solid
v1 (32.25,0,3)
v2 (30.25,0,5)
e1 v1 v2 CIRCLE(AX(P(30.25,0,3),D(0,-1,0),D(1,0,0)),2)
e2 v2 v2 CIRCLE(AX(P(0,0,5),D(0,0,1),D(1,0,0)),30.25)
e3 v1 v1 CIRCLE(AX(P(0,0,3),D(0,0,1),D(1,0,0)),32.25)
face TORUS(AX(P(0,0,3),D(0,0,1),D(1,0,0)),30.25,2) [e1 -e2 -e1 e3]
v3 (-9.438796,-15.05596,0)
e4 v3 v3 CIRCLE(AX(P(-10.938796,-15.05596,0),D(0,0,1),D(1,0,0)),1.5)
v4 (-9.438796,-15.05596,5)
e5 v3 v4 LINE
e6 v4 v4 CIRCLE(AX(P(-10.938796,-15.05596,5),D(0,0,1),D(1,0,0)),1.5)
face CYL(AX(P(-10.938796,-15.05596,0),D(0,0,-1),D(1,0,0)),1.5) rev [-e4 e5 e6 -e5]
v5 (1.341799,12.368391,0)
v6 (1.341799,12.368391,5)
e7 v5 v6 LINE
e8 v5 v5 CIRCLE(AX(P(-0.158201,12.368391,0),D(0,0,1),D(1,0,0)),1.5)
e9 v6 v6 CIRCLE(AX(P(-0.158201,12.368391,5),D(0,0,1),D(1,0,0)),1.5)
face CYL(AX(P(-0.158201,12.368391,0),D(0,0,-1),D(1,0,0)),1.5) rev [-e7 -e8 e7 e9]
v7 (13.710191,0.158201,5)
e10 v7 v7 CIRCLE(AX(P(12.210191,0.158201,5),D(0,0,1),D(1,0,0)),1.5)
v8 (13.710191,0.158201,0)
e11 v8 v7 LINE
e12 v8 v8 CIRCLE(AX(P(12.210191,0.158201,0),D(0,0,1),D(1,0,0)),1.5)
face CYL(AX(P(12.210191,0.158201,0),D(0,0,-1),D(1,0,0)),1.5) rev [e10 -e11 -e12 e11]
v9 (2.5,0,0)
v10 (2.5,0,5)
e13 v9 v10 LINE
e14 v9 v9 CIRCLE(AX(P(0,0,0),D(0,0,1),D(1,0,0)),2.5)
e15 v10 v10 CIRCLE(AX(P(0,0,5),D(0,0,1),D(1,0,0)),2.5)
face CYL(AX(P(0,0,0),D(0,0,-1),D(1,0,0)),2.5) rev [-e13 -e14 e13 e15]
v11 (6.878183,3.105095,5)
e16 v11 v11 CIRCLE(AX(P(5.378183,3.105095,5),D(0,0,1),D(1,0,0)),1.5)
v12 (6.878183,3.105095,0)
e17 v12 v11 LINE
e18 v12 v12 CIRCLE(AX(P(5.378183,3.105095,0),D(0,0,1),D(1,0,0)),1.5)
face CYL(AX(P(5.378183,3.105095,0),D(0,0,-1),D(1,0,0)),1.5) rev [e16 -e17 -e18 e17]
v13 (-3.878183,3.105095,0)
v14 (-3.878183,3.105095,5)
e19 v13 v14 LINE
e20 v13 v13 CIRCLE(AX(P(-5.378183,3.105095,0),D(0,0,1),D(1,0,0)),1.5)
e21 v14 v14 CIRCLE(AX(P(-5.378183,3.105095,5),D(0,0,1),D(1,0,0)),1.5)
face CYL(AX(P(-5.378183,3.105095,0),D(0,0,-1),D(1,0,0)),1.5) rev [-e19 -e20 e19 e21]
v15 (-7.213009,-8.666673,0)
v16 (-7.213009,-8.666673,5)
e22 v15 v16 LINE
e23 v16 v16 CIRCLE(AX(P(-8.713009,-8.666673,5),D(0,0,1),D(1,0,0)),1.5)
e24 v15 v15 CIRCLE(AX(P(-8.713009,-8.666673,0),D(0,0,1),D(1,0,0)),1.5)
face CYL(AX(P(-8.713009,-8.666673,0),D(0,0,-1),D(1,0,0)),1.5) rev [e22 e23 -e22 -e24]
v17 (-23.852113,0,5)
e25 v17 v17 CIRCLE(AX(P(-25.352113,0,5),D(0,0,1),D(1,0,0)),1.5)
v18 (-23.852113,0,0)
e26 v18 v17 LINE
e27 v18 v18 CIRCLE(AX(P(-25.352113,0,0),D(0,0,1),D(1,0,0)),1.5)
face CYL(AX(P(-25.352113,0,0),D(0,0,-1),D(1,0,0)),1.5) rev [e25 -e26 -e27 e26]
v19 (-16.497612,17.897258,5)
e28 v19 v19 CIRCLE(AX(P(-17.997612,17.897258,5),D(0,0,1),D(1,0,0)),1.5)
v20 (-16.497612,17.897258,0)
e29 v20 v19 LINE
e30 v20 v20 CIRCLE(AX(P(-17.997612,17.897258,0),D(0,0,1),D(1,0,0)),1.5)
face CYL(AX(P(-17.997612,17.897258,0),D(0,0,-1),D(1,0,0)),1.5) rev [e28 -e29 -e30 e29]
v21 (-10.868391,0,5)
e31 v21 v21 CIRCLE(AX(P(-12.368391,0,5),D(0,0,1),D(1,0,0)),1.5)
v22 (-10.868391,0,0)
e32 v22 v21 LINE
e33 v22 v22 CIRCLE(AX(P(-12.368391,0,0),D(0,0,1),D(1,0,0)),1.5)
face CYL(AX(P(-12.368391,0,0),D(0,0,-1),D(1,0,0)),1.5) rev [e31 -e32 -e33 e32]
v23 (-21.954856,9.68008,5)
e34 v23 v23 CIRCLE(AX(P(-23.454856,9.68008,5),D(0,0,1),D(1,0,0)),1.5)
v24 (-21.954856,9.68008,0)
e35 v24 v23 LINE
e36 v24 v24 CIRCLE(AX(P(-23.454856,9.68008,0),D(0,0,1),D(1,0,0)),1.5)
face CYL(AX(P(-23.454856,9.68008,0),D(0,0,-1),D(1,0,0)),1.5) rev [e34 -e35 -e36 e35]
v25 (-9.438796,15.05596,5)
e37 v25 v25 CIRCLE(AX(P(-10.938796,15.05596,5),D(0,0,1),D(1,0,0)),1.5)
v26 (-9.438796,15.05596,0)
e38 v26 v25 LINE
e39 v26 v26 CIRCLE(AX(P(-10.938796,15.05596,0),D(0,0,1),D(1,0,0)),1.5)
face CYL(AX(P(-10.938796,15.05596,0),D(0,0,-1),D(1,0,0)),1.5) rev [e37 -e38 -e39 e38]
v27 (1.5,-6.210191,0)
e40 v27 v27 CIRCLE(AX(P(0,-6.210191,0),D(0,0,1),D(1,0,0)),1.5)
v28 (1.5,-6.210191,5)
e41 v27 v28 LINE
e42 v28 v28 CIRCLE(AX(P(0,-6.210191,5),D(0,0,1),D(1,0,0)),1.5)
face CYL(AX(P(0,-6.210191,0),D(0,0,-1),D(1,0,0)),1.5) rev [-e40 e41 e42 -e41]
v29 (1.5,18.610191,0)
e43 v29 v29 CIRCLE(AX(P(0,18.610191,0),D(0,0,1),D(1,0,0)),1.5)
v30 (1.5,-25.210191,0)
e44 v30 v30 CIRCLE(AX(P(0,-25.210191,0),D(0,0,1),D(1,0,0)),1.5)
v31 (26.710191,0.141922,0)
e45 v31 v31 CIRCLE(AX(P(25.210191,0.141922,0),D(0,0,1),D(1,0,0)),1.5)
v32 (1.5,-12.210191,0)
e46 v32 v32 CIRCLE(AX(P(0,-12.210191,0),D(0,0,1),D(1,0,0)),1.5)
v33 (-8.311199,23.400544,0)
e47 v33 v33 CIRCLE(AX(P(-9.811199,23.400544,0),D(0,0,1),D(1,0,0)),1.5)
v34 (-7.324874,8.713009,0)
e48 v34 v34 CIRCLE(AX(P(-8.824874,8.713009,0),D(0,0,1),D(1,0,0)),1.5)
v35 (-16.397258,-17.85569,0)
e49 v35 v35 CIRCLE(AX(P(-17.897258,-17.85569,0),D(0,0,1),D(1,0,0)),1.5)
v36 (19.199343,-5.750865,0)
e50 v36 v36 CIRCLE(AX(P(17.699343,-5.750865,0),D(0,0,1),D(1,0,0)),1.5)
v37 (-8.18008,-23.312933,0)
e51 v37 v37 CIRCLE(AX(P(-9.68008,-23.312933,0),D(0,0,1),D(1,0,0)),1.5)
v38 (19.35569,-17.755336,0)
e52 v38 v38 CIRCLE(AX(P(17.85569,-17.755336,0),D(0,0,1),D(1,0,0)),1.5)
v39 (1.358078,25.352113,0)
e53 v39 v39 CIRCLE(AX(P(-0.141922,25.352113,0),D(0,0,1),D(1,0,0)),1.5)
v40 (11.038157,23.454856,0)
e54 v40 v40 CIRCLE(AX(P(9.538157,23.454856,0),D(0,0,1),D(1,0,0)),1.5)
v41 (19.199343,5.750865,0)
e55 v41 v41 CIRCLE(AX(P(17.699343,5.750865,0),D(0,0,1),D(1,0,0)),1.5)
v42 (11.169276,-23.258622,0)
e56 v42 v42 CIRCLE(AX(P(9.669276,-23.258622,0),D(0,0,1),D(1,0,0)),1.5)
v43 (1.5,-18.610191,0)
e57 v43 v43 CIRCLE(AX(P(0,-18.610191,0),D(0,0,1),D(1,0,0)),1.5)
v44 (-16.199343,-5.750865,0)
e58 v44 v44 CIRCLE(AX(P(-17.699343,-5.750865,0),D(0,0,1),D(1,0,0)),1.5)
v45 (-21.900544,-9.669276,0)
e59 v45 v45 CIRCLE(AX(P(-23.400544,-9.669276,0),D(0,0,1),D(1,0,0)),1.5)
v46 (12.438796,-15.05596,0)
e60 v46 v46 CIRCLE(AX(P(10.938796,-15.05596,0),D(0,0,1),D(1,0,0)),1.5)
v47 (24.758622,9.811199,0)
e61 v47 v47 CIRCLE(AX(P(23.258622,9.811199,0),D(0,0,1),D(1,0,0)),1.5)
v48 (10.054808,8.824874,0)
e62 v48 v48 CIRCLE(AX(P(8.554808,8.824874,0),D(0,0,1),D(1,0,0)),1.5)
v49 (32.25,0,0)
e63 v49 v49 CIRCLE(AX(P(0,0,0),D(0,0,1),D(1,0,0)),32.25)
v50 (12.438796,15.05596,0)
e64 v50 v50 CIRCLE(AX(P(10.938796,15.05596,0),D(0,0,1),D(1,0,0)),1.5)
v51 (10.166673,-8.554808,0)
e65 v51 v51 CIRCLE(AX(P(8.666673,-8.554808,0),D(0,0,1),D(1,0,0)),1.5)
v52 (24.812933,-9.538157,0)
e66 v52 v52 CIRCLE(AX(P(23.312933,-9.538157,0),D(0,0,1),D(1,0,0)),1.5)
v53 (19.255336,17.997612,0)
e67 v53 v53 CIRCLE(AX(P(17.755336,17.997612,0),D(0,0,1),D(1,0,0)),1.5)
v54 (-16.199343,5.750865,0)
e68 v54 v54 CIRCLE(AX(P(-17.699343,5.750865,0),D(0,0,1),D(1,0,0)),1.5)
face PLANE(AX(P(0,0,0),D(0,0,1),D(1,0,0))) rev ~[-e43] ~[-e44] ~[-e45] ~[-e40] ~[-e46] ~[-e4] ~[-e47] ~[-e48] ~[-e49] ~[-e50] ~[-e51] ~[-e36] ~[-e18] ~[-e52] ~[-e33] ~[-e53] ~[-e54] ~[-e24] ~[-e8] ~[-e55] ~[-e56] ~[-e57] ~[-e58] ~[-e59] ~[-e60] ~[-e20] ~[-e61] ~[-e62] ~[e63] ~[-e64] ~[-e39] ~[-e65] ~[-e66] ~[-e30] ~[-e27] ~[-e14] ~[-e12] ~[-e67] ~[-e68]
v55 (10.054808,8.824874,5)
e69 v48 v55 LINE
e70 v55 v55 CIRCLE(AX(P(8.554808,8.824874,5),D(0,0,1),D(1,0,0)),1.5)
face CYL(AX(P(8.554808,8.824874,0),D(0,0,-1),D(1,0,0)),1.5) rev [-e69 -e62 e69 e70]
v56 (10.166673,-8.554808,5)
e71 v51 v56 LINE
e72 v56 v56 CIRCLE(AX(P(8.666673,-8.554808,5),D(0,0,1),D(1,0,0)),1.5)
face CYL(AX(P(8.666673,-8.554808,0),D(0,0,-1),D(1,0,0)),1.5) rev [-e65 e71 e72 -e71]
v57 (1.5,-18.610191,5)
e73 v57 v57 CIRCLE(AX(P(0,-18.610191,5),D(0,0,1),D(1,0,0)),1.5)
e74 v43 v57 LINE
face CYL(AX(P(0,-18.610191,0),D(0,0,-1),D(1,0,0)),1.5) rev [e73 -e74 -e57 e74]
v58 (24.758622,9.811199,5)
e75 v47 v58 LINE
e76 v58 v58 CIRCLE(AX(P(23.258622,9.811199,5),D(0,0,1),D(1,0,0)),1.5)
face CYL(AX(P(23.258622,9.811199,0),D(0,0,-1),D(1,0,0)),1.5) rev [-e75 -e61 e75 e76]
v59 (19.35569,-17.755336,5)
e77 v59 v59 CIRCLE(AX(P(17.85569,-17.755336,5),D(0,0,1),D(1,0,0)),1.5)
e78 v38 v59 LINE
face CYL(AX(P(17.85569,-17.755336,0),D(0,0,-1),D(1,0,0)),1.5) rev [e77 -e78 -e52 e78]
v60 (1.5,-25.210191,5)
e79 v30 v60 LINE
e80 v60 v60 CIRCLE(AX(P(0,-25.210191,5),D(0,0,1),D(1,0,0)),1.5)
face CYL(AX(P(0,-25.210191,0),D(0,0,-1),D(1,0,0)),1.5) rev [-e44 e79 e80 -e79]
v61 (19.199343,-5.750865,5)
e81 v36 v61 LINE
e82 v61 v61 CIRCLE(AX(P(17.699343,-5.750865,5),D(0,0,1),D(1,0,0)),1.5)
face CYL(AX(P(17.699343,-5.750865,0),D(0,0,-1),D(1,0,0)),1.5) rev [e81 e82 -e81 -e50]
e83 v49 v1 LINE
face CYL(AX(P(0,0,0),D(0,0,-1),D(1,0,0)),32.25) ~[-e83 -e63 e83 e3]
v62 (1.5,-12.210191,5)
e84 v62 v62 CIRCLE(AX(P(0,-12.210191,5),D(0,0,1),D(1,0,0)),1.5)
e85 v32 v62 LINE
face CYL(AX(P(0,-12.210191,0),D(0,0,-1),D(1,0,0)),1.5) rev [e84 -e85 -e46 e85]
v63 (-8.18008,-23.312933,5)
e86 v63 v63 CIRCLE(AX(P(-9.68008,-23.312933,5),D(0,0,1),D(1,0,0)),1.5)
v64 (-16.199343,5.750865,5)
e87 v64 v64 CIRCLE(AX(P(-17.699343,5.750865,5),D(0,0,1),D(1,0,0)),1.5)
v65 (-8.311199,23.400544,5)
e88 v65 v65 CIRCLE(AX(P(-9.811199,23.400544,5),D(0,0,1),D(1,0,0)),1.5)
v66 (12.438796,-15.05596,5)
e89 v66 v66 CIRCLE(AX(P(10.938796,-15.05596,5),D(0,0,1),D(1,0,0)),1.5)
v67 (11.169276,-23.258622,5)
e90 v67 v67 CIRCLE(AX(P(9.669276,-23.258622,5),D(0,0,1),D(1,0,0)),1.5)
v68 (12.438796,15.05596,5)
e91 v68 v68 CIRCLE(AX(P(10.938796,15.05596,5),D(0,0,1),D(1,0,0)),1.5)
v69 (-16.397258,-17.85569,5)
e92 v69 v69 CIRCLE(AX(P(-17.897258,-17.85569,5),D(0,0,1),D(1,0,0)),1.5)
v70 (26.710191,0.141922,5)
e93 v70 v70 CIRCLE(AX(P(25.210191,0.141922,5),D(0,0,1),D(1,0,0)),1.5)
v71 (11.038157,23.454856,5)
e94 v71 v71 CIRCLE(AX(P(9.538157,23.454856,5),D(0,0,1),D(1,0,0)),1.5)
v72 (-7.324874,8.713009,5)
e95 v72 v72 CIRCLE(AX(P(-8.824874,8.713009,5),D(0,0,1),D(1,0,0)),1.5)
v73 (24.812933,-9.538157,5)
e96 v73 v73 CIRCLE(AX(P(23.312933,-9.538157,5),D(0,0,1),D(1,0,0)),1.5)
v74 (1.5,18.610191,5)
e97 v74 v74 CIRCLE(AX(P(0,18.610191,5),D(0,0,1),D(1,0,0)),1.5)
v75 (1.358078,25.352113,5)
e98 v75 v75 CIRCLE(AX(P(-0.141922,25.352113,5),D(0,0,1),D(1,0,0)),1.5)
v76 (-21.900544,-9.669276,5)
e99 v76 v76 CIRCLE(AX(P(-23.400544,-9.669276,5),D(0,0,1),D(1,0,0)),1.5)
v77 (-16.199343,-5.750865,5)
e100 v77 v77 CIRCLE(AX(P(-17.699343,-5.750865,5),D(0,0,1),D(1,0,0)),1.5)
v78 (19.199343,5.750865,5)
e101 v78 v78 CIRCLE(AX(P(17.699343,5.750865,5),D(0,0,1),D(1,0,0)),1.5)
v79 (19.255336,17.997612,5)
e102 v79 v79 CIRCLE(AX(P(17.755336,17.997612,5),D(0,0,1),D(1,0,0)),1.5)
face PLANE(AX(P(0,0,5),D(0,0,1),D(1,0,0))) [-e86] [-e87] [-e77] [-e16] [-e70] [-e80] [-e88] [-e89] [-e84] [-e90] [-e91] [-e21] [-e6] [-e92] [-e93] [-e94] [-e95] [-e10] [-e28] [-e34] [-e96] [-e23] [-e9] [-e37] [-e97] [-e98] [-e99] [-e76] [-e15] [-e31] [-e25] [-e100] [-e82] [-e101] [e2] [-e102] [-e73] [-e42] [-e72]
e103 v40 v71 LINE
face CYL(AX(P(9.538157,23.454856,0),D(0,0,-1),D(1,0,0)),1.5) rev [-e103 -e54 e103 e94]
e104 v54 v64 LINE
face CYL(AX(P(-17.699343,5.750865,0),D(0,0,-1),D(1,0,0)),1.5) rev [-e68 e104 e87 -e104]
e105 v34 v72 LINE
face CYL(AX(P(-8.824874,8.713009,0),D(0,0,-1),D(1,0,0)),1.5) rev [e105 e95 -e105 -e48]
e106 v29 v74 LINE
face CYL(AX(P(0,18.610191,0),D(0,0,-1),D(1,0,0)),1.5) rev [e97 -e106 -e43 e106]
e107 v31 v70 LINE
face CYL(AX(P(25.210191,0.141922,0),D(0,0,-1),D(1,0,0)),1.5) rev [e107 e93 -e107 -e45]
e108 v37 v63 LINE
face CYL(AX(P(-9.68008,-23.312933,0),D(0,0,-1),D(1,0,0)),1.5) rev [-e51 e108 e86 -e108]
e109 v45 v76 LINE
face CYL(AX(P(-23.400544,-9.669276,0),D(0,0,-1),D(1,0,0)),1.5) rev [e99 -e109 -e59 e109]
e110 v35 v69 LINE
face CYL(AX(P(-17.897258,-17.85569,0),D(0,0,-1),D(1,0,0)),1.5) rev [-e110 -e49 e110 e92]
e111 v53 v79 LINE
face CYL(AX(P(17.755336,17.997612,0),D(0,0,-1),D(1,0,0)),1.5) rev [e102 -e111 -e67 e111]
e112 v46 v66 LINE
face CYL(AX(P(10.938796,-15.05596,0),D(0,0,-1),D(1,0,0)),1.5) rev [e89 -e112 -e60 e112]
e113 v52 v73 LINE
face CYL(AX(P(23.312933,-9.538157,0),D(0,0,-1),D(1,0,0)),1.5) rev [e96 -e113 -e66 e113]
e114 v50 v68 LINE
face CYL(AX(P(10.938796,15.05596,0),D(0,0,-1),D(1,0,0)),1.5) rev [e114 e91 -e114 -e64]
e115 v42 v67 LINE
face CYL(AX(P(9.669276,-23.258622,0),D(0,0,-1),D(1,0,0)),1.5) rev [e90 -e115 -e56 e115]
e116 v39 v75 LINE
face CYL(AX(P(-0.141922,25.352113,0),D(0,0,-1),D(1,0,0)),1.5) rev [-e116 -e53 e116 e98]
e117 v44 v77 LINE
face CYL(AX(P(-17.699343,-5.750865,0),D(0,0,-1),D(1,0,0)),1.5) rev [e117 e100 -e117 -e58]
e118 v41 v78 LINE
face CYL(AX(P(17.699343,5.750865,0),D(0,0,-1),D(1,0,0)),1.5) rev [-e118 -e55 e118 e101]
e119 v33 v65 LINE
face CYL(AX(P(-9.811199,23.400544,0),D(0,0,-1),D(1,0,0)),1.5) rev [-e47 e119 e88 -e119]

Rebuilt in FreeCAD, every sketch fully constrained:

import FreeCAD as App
import Part
import Sketcher

V = App.Vector


def edges_at(feature, points):
    """Names of the edges that pass closest to the given points."""
    edges = feature.Shape.Edges
    near = lambda p: min(range(len(edges)), key=lambda i: edges[i].distToShape(Part.Vertex(*p))[0])
    return sorted({f"Edge{near(p) + 1}" for p in points})

doc = App.newDocument("Part")
body = doc.addObject("PartDesign::Body", "Body")

sketch1 = body.newObject("Sketcher::SketchObject", "Sketch")
sketch1.AttachmentSupport = (doc.getObject("XY_Plane"), [""])
sketch1.MapMode = "FlatFace"
sketch1.addGeometry([
    Part.Circle(V(0, 0, 0), V(0, 0, 1), 32.2),
    Part.Circle(V(-17.9, -17.9, 0), V(0, 0, 1), 1.5),
    Part.Circle(V(-9.7, -23.3, 0), V(0, 0, 1), 1.5),
    Part.Circle(V(-10.9, -15.1, 0), V(0, 0, 1), 1.5),
    Part.Circle(V(-23.4, -9.7, 0), V(0, 0, 1), 1.5),
    Part.Circle(V(-25.4, 0, 0), V(0, 0, 1), 1.5),
    Part.Circle(V(-17.7, -5.8, 0), V(0, 0, 1), 1.5),
    Part.Circle(V(-8.7, -8.7, 0), V(0, 0, 1), 1.5),
    Part.Circle(V(-12.4, 0, 0), V(0, 0, 1), 1.5),
    Part.Circle(V(0, -25.2, 0), V(0, 0, 1), 1.5),
    Part.Circle(V(9.7, -23.3, 0), V(0, 0, 1), 1.5),
    Part.Circle(V(0, -18.6, 0), V(0, 0, 1), 1.5),
    Part.Circle(V(10.9, -15.1, 0), V(0, 0, 1), 1.5),
    Part.Circle(V(17.9, -17.8, 0), V(0, 0, 1), 1.5),
    Part.Circle(V(0, -12.2, 0), V(0, 0, 1), 1.5),
    Part.Circle(V(8.7, -8.6, 0), V(0, 0, 1), 1.5),
    Part.Circle(V(0, -6.2, 0), V(0, 0, 1), 1.5),
    Part.Circle(V(0, 0, 0), V(0, 0, 1), 2.5),
    Part.Circle(V(23.3, -9.5, 0), V(0, 0, 1), 1.5),
    Part.Circle(V(17.7, -5.8, 0), V(0, 0, 1), 1.5),
    Part.Circle(V(-17.7, 5.8, 0), V(0, 0, 1), 1.5),
    Part.Circle(V(-23.5, 9.7, 0), V(0, 0, 1), 1.5),
    Part.Circle(V(-5.4, 3.1, 0), V(0, 0, 1), 1.5),
    Part.Circle(V(-8.8, 8.7, 0), V(0, 0, 1), 1.5),
    Part.Circle(V(-0.2, 12.4, 0), V(0, 0, 1), 1.5),
    Part.Circle(V(-18, 17.9, 0), V(0, 0, 1), 1.5),
    Part.Circle(V(-10.9, 15.1, 0), V(0, 0, 1), 1.5),
    Part.Circle(V(-9.8, 23.4, 0), V(0, 0, 1), 1.5),
    Part.Circle(V(-0.1, 25.4, 0), V(0, 0, 1), 1.5),
    Part.Circle(V(5.4, 3.1, 0), V(0, 0, 1), 1.5),
    Part.Circle(V(12.2, 0.2, 0), V(0, 0, 1), 1.5),
    Part.Circle(V(8.6, 8.8, 0), V(0, 0, 1), 1.5),
    Part.Circle(V(17.7, 5.8, 0), V(0, 0, 1), 1.5),
    Part.Circle(V(25.2, 0.1, 0), V(0, 0, 1), 1.5),
    Part.Circle(V(23.3, 9.8, 0), V(0, 0, 1), 1.5),
    Part.Circle(V(0, 18.6, 0), V(0, 0, 1), 1.5),
    Part.Circle(V(10.9, 15.1, 0), V(0, 0, 1), 1.5),
    Part.Circle(V(9.5, 23.5, 0), V(0, 0, 1), 1.5),
    Part.Circle(V(17.8, 18, 0), V(0, 0, 1), 1.5),
], False)
sketch1.addConstraint([
    Sketcher.Constraint("Coincident", 0, 3, -1, 1),
    Sketcher.Constraint("Coincident", 17, 3, -1, 1),
    Sketcher.Constraint("Equal", 1, 2),
    Sketcher.Constraint("Equal", 2, 3),
    Sketcher.Constraint("Equal", 3, 4),
    Sketcher.Constraint("Equal", 4, 5),
    Sketcher.Constraint("Equal", 5, 6),
    Sketcher.Constraint("Equal", 6, 7),
    Sketcher.Constraint("Equal", 7, 8),
    Sketcher.Constraint("Equal", 8, 9),
    Sketcher.Constraint("Equal", 9, 10),
    Sketcher.Constraint("Equal", 10, 11),
    Sketcher.Constraint("Equal", 11, 12),
    Sketcher.Constraint("Equal", 12, 13),
    Sketcher.Constraint("Equal", 13, 14),
    Sketcher.Constraint("Equal", 14, 15),
    Sketcher.Constraint("Equal", 15, 16),
    Sketcher.Constraint("Equal", 16, 18),
    Sketcher.Constraint("Equal", 18, 19),
    Sketcher.Constraint("Equal", 19, 20),
    Sketcher.Constraint("Equal", 20, 21),
    Sketcher.Constraint("Equal", 21, 22),
    Sketcher.Constraint("Equal", 22, 23),
    Sketcher.Constraint("Equal", 23, 24),
    Sketcher.Constraint("Equal", 24, 25),
    Sketcher.Constraint("Equal", 25, 26),
    Sketcher.Constraint("Equal", 26, 27),
    Sketcher.Constraint("Equal", 27, 28),
    Sketcher.Constraint("Equal", 28, 29),
    Sketcher.Constraint("Equal", 29, 30),
    Sketcher.Constraint("Equal", 30, 31),
    Sketcher.Constraint("Equal", 31, 32),
    Sketcher.Constraint("Equal", 32, 33),
    Sketcher.Constraint("Equal", 33, 34),
    Sketcher.Constraint("Equal", 34, 35),
    Sketcher.Constraint("Equal", 35, 36),
    Sketcher.Constraint("Equal", 36, 37),
    Sketcher.Constraint("Equal", 37, 38),
    Sketcher.Constraint("Symmetric", 19, 3, 20, 3, -1, 1),
    Sketcher.Constraint("Symmetric", 12, 3, 26, 3, -1, 1),
    Sketcher.Constraint("Symmetric", 6, 3, 32, 3, -1, 1),
    Sketcher.Constraint("Symmetric", 11, 3, 35, 3, -1, 1),
    Sketcher.Constraint("Symmetric", 3, 3, 36, 3, -1, 1),
    Sketcher.Constraint("Symmetric", 3, 3, 12, 3, -2),
    Sketcher.Constraint("Symmetric", 6, 3, 19, 3, -2),
    Sketcher.Constraint("Symmetric", 22, 3, 29, 3, -2),
    Sketcher.Constraint("PointOnObject", 5, 3, -1),
    Sketcher.Constraint("PointOnObject", 8, 3, -1),
    Sketcher.Constraint("PointOnObject", 9, 3, -2),
    Sketcher.Constraint("PointOnObject", 11, 3, -2),
    Sketcher.Constraint("PointOnObject", 14, 3, -2),
    Sketcher.Constraint("PointOnObject", 16, 3, -2),
    Sketcher.Constraint("Diameter", 1, 3.0),
    Sketcher.Constraint("Diameter", 17, 5.0),
    Sketcher.Constraint("Diameter", 0, 64.5),
    Sketcher.Constraint("DistanceY", 14, 3, 16, 3, 6.0),
    Sketcher.Constraint("DistanceX", 30, 3, 33, 3, 13.0),
    Sketcher.Constraint("DistanceY", 9, 3, 11, 3, 6.6),
    Sketcher.Constraint("DistanceY", 11, 3, 14, 3, 6.4),
    Sketcher.Constraint("DistanceX", 24, 3, -1, 1, 0.158201),
    Sketcher.Constraint("DistanceX", 27, 3, -1, 1, 9.811199),
    Sketcher.Constraint("DistanceY", -1, 1, 30, 3, 0.158201),
    Sketcher.Constraint("DistanceY", -1, 1, 34, 3, 9.811199),
    Sketcher.Constraint("DistanceX", 4, 3, 6, 3, 5.701201),
    Sketcher.Constraint("DistanceY", 9, 3, 1, 3, 7.354501),
    Sketcher.Constraint("DistanceY", 26, 3, 25, 3, 2.841298),
    Sketcher.Constraint("DistanceY", 24, 3, 35, 3, 6.2418),
    Sketcher.Constraint("DistanceX", 1, 3, -1, 1, 17.897258),
    Sketcher.Constraint("DistanceY", 1, 3, -1, 1, 17.85569),
    Sketcher.Constraint("DistanceX", 2, 3, -1, 1, 9.68008),
    Sketcher.Constraint("DistanceY", 3, 3, -1, 1, 15.05596),
    Sketcher.Constraint("DistanceX", 7, 3, -1, 1, 8.713009),
    Sketcher.Constraint("DistanceX", 8, 3, -1, 1, 12.368391),
    Sketcher.Constraint("DistanceY", 10, 3, -1, 1, 23.258622),
    Sketcher.Constraint("DistanceX", -1, 1, 13, 3, 17.85569),
    Sketcher.Constraint("DistanceY", -1, 1, 21, 3, 9.68008),
    Sketcher.Constraint("DistanceY", -1, 1, 23, 3, 8.713009),
    Sketcher.Constraint("DistanceX", 25, 3, -1, 1, 17.997612),
    Sketcher.Constraint("DistanceX", -1, 1, 30, 3, 12.210191),
    Sketcher.Constraint("DistanceX", -1, 1, 34, 3, 23.258622),
    Sketcher.Constraint("DistanceY", -1, 1, 38, 3, 17.997612),
    Sketcher.Constraint("DistanceX", 5, 3, 4, 3, 1.951569),
    Sketcher.Constraint("DistanceY", 4, 3, 6, 3, 3.918411),
    Sketcher.Constraint("DistanceY", 2, 3, 7, 3, 14.64626),
    Sketcher.Constraint("DistanceX", 6, 3, 8, 3, 5.330952),
    Sketcher.Constraint("DistanceY", 2, 3, 10, 3, 0.054311),
    Sketcher.Constraint("DistanceX", 3, 3, 10, 3, 20.608072),
    Sketcher.Constraint("DistanceX", 10, 3, 12, 3, 1.26952),
    Sketcher.Constraint("DistanceY", 13, 3, 18, 3, 8.217179),
    Sketcher.Constraint("DistanceX", 15, 3, 18, 3, 14.64626),
    Sketcher.Constraint("DistanceY", 18, 3, 15, 3, 0.983349),
    Sketcher.Constraint("DistanceX", 19, 3, 18, 3, 5.61359),
    Sketcher.Constraint("DistanceY", 18, 3, 19, 3, 3.787292),
    Sketcher.Constraint("DistanceY", 6, 3, 20, 3, 11.50173),
    Sketcher.Constraint("DistanceX", 21, 3, 4, 3, 0.054312),
    Sketcher.Constraint("DistanceX", 8, 3, 22, 3, 6.990208),
    Sketcher.Constraint("DistanceX", 23, 3, 22, 3, 3.446691),
    Sketcher.Constraint("DistanceY", 20, 3, 27, 3, 17.649679),
    Sketcher.Constraint("DistanceY", 27, 3, 28, 3, 1.951569),
    Sketcher.Constraint("DistanceX", 24, 3, 28, 3, 0.016279),
    Sketcher.Constraint("DistanceY", 29, 3, 31, 3, 5.719779),
    Sketcher.Constraint("DistanceX", 24, 3, 31, 3, 8.713009),
    Sketcher.Constraint("DistanceY", 32, 3, 31, 3, 3.074009),
    Sketcher.Constraint("DistanceY", 18, 3, 33, 3, 9.680079),
    Sketcher.Constraint("DistanceX", 37, 3, 36, 3, 1.400639),
    Sketcher.Constraint("DistanceX", 36, 3, 38, 3, 6.81654),
    Sketcher.Constraint("DistanceY", -1, 1, 37, 3, 23.454856),
])
pad1 = body.newObject("PartDesign::Pad", "Pad")
pad1.Profile = sketch1
pad1.Length = 5
doc.recompute()

fillet = body.newObject("PartDesign::Fillet", "Fillet")
fillet.Base = (pad1, edges_at(pad1, [(-32.25, 0, 5)]))
fillet.Radius = 2

doc.recompute()
